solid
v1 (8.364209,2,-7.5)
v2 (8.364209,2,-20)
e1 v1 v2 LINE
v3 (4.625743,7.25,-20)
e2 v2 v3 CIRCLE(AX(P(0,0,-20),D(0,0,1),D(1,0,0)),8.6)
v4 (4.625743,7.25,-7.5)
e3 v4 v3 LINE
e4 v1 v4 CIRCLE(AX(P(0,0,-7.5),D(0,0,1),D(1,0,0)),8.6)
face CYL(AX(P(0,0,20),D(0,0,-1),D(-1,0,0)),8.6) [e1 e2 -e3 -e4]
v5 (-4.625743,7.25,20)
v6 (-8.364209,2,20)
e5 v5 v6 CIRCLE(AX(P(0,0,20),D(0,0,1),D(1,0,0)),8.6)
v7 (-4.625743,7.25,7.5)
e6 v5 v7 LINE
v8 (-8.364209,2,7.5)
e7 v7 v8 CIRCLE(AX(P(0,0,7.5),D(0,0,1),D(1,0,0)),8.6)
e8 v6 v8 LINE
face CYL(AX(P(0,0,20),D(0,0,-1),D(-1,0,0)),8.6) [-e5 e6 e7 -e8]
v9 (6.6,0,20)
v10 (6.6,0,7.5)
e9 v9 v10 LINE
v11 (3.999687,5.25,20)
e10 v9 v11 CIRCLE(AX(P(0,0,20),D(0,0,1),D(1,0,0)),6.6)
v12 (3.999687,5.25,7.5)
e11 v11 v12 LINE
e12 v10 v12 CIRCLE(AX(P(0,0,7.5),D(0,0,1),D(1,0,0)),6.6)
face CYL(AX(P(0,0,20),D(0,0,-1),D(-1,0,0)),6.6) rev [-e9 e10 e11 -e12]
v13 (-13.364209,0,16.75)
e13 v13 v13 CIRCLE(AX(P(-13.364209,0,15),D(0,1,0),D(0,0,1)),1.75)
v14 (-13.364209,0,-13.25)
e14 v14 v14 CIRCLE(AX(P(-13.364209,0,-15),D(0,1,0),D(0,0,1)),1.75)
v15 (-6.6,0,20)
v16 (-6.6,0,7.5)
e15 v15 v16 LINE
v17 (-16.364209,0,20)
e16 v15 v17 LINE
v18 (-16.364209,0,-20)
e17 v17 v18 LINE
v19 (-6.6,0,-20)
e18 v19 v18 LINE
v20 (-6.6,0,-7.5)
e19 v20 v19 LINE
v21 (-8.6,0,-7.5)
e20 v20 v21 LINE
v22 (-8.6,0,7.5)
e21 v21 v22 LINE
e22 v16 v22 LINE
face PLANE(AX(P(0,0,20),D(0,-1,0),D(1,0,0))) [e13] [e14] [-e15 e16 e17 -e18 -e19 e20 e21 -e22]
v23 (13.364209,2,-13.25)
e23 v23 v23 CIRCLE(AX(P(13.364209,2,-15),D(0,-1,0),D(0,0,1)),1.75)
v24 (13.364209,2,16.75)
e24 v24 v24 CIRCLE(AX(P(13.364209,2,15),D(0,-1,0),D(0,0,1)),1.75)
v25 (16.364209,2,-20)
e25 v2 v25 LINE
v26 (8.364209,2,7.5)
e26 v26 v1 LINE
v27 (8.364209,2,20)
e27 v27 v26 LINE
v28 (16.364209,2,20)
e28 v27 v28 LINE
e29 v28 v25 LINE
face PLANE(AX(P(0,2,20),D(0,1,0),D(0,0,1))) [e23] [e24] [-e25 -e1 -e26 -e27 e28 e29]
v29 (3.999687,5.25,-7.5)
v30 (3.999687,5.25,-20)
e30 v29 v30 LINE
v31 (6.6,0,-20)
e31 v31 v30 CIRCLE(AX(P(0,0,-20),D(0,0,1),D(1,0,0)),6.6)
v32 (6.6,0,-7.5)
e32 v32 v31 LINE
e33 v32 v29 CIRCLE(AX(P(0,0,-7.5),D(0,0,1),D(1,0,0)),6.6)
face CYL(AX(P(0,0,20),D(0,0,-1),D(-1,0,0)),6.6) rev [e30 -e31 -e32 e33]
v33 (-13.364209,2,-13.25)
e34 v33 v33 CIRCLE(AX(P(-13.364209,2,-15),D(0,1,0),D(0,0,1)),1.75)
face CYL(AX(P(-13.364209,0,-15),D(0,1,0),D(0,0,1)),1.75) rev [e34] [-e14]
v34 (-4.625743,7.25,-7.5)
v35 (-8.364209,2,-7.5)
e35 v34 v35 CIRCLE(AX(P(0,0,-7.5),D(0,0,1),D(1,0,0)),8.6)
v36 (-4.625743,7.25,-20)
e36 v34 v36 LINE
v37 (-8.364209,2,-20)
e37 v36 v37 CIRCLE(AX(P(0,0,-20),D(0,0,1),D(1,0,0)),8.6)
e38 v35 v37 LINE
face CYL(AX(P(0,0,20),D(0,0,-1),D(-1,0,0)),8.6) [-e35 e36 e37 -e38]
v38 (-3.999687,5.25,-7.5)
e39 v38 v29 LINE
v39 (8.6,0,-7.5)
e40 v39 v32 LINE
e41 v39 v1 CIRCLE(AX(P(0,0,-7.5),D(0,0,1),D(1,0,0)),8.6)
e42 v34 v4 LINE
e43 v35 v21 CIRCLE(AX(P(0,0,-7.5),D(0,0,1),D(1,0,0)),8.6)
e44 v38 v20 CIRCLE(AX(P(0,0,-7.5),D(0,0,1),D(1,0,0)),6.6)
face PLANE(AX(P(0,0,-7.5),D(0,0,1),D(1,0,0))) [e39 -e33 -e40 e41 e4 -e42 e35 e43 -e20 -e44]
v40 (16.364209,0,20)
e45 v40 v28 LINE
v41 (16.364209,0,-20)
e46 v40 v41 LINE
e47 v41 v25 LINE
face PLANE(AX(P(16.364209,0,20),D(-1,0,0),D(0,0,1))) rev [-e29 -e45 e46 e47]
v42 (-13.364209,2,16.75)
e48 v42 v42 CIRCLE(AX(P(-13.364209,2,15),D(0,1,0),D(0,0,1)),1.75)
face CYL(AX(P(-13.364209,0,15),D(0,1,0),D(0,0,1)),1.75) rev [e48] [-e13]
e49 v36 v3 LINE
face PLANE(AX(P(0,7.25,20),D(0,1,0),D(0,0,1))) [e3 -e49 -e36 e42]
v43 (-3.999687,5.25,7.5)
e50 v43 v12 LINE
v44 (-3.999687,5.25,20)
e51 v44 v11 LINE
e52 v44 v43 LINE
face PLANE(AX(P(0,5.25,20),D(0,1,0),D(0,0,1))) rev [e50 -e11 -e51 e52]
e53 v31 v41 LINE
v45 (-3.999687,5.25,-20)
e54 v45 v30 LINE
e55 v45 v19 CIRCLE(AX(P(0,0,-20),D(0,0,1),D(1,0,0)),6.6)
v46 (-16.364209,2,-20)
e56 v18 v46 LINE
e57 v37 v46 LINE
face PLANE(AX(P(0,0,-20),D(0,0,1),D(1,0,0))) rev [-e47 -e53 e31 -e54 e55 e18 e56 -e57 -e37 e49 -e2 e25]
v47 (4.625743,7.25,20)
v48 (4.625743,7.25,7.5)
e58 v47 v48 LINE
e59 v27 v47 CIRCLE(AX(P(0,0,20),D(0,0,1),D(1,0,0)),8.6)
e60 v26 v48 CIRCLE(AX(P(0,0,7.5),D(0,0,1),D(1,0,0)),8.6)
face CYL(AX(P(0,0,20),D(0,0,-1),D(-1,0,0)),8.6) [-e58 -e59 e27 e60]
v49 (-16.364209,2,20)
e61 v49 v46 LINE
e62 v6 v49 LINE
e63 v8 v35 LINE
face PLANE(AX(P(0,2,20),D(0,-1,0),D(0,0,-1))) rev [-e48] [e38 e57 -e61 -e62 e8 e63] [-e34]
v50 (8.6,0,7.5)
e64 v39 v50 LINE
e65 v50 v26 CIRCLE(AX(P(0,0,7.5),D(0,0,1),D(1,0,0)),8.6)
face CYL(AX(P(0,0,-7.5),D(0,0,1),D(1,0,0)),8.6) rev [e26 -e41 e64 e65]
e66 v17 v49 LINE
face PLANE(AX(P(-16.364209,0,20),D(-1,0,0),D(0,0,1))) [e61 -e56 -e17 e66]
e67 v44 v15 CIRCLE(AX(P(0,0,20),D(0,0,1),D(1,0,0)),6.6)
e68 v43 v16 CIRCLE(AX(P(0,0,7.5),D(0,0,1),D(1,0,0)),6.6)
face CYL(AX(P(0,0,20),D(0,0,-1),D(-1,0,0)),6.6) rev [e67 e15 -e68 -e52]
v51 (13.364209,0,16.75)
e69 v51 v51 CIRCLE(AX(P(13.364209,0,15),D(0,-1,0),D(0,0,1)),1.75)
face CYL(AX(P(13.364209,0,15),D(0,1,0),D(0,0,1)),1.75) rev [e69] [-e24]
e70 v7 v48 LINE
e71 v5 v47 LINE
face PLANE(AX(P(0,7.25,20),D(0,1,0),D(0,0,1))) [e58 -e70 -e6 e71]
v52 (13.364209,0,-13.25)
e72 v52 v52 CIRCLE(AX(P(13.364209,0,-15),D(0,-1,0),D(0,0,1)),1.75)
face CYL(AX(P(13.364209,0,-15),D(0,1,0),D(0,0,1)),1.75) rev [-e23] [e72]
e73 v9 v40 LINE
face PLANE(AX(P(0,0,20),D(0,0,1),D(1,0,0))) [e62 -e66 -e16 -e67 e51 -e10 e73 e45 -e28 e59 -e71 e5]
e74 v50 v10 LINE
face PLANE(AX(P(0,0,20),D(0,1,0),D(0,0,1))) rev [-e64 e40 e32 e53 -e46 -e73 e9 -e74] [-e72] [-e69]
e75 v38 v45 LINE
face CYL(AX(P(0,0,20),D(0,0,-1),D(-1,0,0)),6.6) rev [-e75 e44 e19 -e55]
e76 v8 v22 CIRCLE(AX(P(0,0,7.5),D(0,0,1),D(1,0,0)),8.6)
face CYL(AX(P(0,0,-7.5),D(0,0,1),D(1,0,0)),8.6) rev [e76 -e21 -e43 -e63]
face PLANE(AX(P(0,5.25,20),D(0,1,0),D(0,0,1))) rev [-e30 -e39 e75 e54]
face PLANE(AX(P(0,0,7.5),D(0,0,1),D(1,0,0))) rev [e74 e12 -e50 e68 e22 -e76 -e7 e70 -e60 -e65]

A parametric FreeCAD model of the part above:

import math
import FreeCAD as App
import Part
import Sketcher
from FreeCAD import Vector

doc = App.newDocument("Part")
body = doc.addObject("PartDesign::Body", "Body")

# Sketch on XY plane
sketch1 = doc.addObject("Sketcher::SketchObject", "Sketch")
body.addObject(sketch1)
sketch1.AttachmentSupport = (doc.XY_Plane, [""])
sketch1.MapMode = "FlatFace"
sketch1.addGeometry(Part.ArcOfCircle(Part.Circle(Vector(0, 0, 0), Vector(0, 0, 1), 8.6), math.radians(0), math.radians(13.447727)), False)
sketch1.addGeometry(Part.LineSegment(Vector(8.6, 0, 0), Vector(16.364209, 0, 0)), False)
sketch1.addGeometry(Part.LineSegment(Vector(16.364209, 0, 0), Vector(16.364209, 2, 0)), False)
sketch1.addGeometry(Part.LineSegment(Vector(16.364209, 2, 0), Vector(8.364209, 2, 0)), False)
sketch1.addConstraint(Sketcher.Constraint("Coincident", 0, 1, 1, 1))
sketch1.addConstraint(Sketcher.Constraint("Coincident", 1, 2, 2, 1))
sketch1.addConstraint(Sketcher.Constraint("Coincident", 2, 2, 3, 1))
sketch1.addConstraint(Sketcher.Constraint("Coincident", 3, 2, 0, 2))
sketch1.addConstraint(Sketcher.Constraint("Horizontal", 1))
sketch1.addConstraint(Sketcher.Constraint("Vertical", 2))
sketch1.addConstraint(Sketcher.Constraint("Horizontal", 3))
sketch1.addConstraint(Sketcher.Constraint("Coincident", 0, 3, -1, 1))
sketch1.addConstraint(Sketcher.Constraint("PointOnObject", 0, 1, -1))
sketch1.addConstraint(Sketcher.Constraint("Radius", 0, 8.6))
sketch1.addConstraint(Sketcher.Constraint("DistanceX", 3, 2, 3, 1, 8.0))
sketch1.addConstraint(Sketcher.Constraint("DistanceY", 2, 1, 2, 2, 2.0))
pad1 = doc.addObject("PartDesign::Pad", "Pad")
body.addObject(pad1)
pad1.Profile = sketch1
pad1.Length = 40
pad1.Midplane = True
body2 = doc.addObject("PartDesign::Body", "Body001")

# Sketch on XY plane
sketch2 = doc.addObject("Sketcher::SketchObject", "Sketch001")
body2.addObject(sketch2)
sketch2.AttachmentSupport = (doc.getObject("XY_Plane001"), [""])
sketch2.MapMode = "FlatFace"
sketch2.addGeometry(Part.LineSegment(Vector(-16.364209, 0, 0), Vector(-8.6, 0, 0)), False)
sketch2.addGeometry(Part.ArcOfCircle(Part.Circle(Vector(0, 0, 0), Vector(0, 0, 1), 8.6), math.radians(166.552273), math.radians(180)), False)
sketch2.addGeometry(Part.LineSegment(Vector(-8.364209, 2, 0), Vector(-16.364209, 2, 0)), False)
sketch2.addGeometry(Part.LineSegment(Vector(-16.364209, 2, 0), Vector(-16.364209, 0, 0)), False)
sketch2.addConstraint(Sketcher.Constraint("Coincident", 0, 2, 1, 2))
sketch2.addConstraint(Sketcher.Constraint("Coincident", 1, 1, 2, 1))
sketch2.addConstraint(Sketcher.Constraint("Coincident", 2, 2, 3, 1))
sketch2.addConstraint(Sketcher.Constraint("Coincident", 3, 2, 0, 1))
sketch2.addConstraint(Sketcher.Constraint("Horizontal", 0))
sketch2.addConstraint(Sketcher.Constraint("Horizontal", 2))
sketch2.addConstraint(Sketcher.Constraint("Vertical", 3))
sketch2.addConstraint(Sketcher.Constraint("Coincident", 1, 3, -1, 1))
sketch2.addConstraint(Sketcher.Constraint("PointOnObject", 0, 2, -1))
sketch2.addConstraint(Sketcher.Constraint("Radius", 1, 8.6))
sketch2.addConstraint(Sketcher.Constraint("DistanceX", 2, 2, 2, 1, 8.0))
sketch2.addConstraint(Sketcher.Constraint("DistanceY", 3, 2, 3, 1, 2.0))
pad2 = doc.addObject("PartDesign::Pad", "Pad001")
body2.addObject(pad2)
pad2.Profile = sketch2
pad2.Length = 40
pad2.Midplane = True
body.AllowCompound = True
doc.recompute()

boolean = doc.addObject("PartDesign::Boolean", "Boolean")
body.addObject(boolean)
boolean.Type = "Fuse"
boolean.addObjects([body2])

# Sketch on XY plane
sketch3 = doc.addObject("Sketcher::SketchObject", "Sketch002")
body.addObject(sketch3)
sketch3.AttachmentSupport = (doc.XY_Plane, [""])
sketch3.MapMode = "FlatFace"
sketch3.addGeometry(Part.LineSegment(Vector(6.6, 0, 0), Vector(8.6, 0, 0)), False)
sketch3.addGeometry(Part.ArcOfCircle(Part.Circle(Vector(0, 0, 0), Vector(0, 0, 1), 8.6), math.radians(0), math.radians(57.460759)), False)
sketch3.addGeometry(Part.LineSegment(Vector(4.625743, 7.25, 0), Vector(-4.625743, 7.25, 0)), False)
sketch3.addGeometry(Part.ArcOfCircle(Part.Circle(Vector(0, 0, 0), Vector(0, 0, 1), 8.6), math.radians(122.539241), math.radians(180)), False)
sketch3.addGeometry(Part.LineSegment(Vector(-8.6, 0, 0), Vector(-6.6, 0, 0)), False)
sketch3.addGeometry(Part.ArcOfCircle(Part.Circle(Vector(0, 0, 0), Vector(0, 0, 1), 6.6), math.radians(127.30179), math.radians(180)), False)
sketch3.addGeometry(Part.LineSegment(Vector(-3.999687, 5.25, 0), Vector(3.999687, 5.25, 0)), False)
sketch3.addGeometry(Part.ArcOfCircle(Part.Circle(Vector(0, 0, 0), Vector(0, 0, 1), 6.6), math.radians(0), math.radians(52.69821)), False)
sketch3.addConstraint(Sketcher.Constraint("Coincident", 0, 2, 1, 1))
sketch3.addConstraint(Sketcher.Constraint("Coincident", 1, 2, 2, 1))
sketch3.addConstraint(Sketcher.Constraint("Coincident", 2, 2, 3, 1))
sketch3.addConstraint(Sketcher.Constraint("Coincident", 3, 2, 4, 1))
sketch3.addConstraint(Sketcher.Constraint("Coincident", 4, 2, 5, 2))
sketch3.addConstraint(Sketcher.Constraint("Coincident", 5, 1, 6, 1))
sketch3.addConstraint(Sketcher.Constraint("Coincident", 6, 2, 7, 2))
sketch3.addConstraint(Sketcher.Constraint("Coincident", 7, 1, 0, 1))
sketch3.addConstraint(Sketcher.Constraint("Horizontal", 0))
sketch3.addConstraint(Sketcher.Constraint("Horizontal", 2))
sketch3.addConstraint(Sketcher.Constraint("Horizontal", 4))
sketch3.addConstraint(Sketcher.Constraint("Horizontal", 6))
sketch3.addConstraint(Sketcher.Constraint("Coincident", 1, 3, -1, 1))
sketch3.addConstraint(Sketcher.Constraint("Coincident", 3, 3, -1, 1))
sketch3.addConstraint(Sketcher.Constraint("Coincident", 5, 3, -1, 1))
sketch3.addConstraint(Sketcher.Constraint("Coincident", 7, 3, -1, 1))
sketch3.addConstraint(Sketcher.Constraint("Equal", 1, 3))
sketch3.addConstraint(Sketcher.Constraint("Equal", 5, 7))
sketch3.addConstraint(Sketcher.Constraint("PointOnObject", 0, 2, -1))
sketch3.addConstraint(Sketcher.Constraint("PointOnObject", 3, 2, -1))
sketch3.addConstraint(Sketcher.Constraint("Radius", 1, 8.6))
sketch3.addConstraint(Sketcher.Constraint("Radius", 5, 6.6))
sketch3.addConstraint(Sketcher.Constraint("DistanceY", 5, 1, 2, 2, 2.0))
sketch3.addConstraint(Sketcher.Constraint("DistanceY", -1, 1, 1, 2, 7.25))
pad3 = doc.addObject("PartDesign::Pad", "Pad002")
body.addObject(pad3)
pad3.Profile = sketch3
pad3.Length = 40
pad3.Midplane = True

# Sketch on XY plane
sketch4 = doc.addObject("Sketcher::SketchObject", "Sketch003")
body.addObject(sketch4)
sketch4.AttachmentSupport = (doc.XY_Plane, [""])
sketch4.MapMode = "FlatFace"
sketch4.addGeometry(Part.LineSegment(Vector(6.6, 0, 0), Vector(8.6, 0, 0)), False)
sketch4.addGeometry(Part.ArcOfCircle(Part.Circle(Vector(0, 0, 0), Vector(0, 0, 1), 8.6), math.radians(0), math.radians(57.460759)), False)
sketch4.addGeometry(Part.LineSegment(Vector(4.625743, 7.25, 0), Vector(-4.625743, 7.25, 0)), False)
sketch4.addGeometry(Part.ArcOfCircle(Part.Circle(Vector(0, 0, 0), Vector(0, 0, 1), 8.6), math.radians(122.539241), math.radians(180)), False)
sketch4.addGeometry(Part.LineSegment(Vector(-8.6, 0, 0), Vector(-6.6, 0, 0)), False)
sketch4.addGeometry(Part.ArcOfCircle(Part.Circle(Vector(0, 0, 0), Vector(0, 0, 1), 6.6), math.radians(127.30179), math.radians(180)), False)
sketch4.addGeometry(Part.LineSegment(Vector(-3.999687, 5.25, 0), Vector(3.999687, 5.25, 0)), False)
sketch4.addGeometry(Part.ArcOfCircle(Part.Circle(Vector(0, 0, 0), Vector(0, 0, 1), 6.6), math.radians(0), math.radians(52.69821)), False)
sketch4.addConstraint(Sketcher.Constraint("Coincident", 0, 2, 1, 1))
sketch4.addConstraint(Sketcher.Constraint("Coincident", 1, 2, 2, 1))
sketch4.addConstraint(Sketcher.Constraint("Coincident", 2, 2, 3, 1))
sketch4.addConstraint(Sketcher.Constraint("Coincident", 3, 2, 4, 1))
sketch4.addConstraint(Sketcher.Constraint("Coincident", 4, 2, 5, 2))
sketch4.addConstraint(Sketcher.Constraint("Coincident", 5, 1, 6, 1))
sketch4.addConstraint(Sketcher.Constraint("Coincident", 6, 2, 7, 2))
sketch4.addConstraint(Sketcher.Constraint("Coincident", 7, 1, 0, 1))
sketch4.addConstraint(Sketcher.Constraint("Horizontal", 0))
sketch4.addConstraint(Sketcher.Constraint("Horizontal", 2))
sketch4.addConstraint(Sketcher.Constraint("Horizontal", 4))
sketch4.addConstraint(Sketcher.Constraint("Horizontal", 6))
sketch4.addConstraint(Sketcher.Constraint("Coincident", 1, 3, -1, 1))
sketch4.addConstraint(Sketcher.Constraint("Coincident", 3, 3, -1, 1))
sketch4.addConstraint(Sketcher.Constraint("Coincident", 5, 3, -1, 1))
sketch4.addConstraint(Sketcher.Constraint("Coincident", 7, 3, -1, 1))
sketch4.addConstraint(Sketcher.Constraint("Equal", 1, 3))
sketch4.addConstraint(Sketcher.Constraint("Equal", 5, 7))
sketch4.addConstraint(Sketcher.Constraint("PointOnObject", 0, 2, -1))
sketch4.addConstraint(Sketcher.Constraint("PointOnObject", 3, 2, -1))
sketch4.addConstraint(Sketcher.Constraint("Radius", 1, 8.6))
sketch4.addConstraint(Sketcher.Constraint("Radius", 5, 6.6))
sketch4.addConstraint(Sketcher.Constraint("DistanceY", 5, 1, 2, 2, 2.0))
sketch4.addConstraint(Sketcher.Constraint("DistanceY", -1, 1, 1, 2, 7.25))
pocket1 = doc.addObject("PartDesign::Pocket", "Pocket")
body.addObject(pocket1)
pocket1.Profile = sketch4
pocket1.Length = 15
pocket1.Midplane = True

# Sketch on XZ plane
sketch5 = doc.addObject("Sketcher::SketchObject", "Sketch004")
body.addObject(sketch5)
sketch5.AttachmentSupport = (doc.XZ_Plane, [""])
sketch5.MapMode = "FlatFace"
sketch5.AttachmentOffset = App.Placement(Vector(0, 0, -2), App.Rotation())
sketch5.addGeometry(Part.Circle(Vector(-13.364209, -15, 0), Vector(0, 0, 1), 1.75), False)
sketch5.addGeometry(Part.Circle(Vector(-13.364209, 15, 0), Vector(0, 0, 1), 1.75), False)
sketch5.addConstraint(Sketcher.Constraint("Equal", 0, 1))
sketch5.addConstraint(Sketcher.Constraint("Symmetric", 0, 3, 1, 3, -1))
sketch5.addConstraint(Sketcher.Constraint("Diameter", 0, 3.5))
sketch5.addConstraint(Sketcher.Constraint("DistanceY", 0, 3, -1, 1, 15.0))
sketch5.addConstraint(Sketcher.Constraint("DistanceX", 0, 3, -1, 1, 13.364209))
pocket2 = doc.addObject("PartDesign::Pocket", "Pocket001")
body.addObject(pocket2)
pocket2.Profile = sketch5
pocket2.Type = "ThroughAll"
pocket2.Reversed = True
doc.recompute()

mirrored = doc.addObject("PartDesign::Mirrored", "Mirrored")
body.addObject(mirrored)
mirrored.Originals = [pocket2]
mirrored.MirrorPlane = (doc.YZ_Plane, [""])
body.Tip = mirrored

doc.recompute()
